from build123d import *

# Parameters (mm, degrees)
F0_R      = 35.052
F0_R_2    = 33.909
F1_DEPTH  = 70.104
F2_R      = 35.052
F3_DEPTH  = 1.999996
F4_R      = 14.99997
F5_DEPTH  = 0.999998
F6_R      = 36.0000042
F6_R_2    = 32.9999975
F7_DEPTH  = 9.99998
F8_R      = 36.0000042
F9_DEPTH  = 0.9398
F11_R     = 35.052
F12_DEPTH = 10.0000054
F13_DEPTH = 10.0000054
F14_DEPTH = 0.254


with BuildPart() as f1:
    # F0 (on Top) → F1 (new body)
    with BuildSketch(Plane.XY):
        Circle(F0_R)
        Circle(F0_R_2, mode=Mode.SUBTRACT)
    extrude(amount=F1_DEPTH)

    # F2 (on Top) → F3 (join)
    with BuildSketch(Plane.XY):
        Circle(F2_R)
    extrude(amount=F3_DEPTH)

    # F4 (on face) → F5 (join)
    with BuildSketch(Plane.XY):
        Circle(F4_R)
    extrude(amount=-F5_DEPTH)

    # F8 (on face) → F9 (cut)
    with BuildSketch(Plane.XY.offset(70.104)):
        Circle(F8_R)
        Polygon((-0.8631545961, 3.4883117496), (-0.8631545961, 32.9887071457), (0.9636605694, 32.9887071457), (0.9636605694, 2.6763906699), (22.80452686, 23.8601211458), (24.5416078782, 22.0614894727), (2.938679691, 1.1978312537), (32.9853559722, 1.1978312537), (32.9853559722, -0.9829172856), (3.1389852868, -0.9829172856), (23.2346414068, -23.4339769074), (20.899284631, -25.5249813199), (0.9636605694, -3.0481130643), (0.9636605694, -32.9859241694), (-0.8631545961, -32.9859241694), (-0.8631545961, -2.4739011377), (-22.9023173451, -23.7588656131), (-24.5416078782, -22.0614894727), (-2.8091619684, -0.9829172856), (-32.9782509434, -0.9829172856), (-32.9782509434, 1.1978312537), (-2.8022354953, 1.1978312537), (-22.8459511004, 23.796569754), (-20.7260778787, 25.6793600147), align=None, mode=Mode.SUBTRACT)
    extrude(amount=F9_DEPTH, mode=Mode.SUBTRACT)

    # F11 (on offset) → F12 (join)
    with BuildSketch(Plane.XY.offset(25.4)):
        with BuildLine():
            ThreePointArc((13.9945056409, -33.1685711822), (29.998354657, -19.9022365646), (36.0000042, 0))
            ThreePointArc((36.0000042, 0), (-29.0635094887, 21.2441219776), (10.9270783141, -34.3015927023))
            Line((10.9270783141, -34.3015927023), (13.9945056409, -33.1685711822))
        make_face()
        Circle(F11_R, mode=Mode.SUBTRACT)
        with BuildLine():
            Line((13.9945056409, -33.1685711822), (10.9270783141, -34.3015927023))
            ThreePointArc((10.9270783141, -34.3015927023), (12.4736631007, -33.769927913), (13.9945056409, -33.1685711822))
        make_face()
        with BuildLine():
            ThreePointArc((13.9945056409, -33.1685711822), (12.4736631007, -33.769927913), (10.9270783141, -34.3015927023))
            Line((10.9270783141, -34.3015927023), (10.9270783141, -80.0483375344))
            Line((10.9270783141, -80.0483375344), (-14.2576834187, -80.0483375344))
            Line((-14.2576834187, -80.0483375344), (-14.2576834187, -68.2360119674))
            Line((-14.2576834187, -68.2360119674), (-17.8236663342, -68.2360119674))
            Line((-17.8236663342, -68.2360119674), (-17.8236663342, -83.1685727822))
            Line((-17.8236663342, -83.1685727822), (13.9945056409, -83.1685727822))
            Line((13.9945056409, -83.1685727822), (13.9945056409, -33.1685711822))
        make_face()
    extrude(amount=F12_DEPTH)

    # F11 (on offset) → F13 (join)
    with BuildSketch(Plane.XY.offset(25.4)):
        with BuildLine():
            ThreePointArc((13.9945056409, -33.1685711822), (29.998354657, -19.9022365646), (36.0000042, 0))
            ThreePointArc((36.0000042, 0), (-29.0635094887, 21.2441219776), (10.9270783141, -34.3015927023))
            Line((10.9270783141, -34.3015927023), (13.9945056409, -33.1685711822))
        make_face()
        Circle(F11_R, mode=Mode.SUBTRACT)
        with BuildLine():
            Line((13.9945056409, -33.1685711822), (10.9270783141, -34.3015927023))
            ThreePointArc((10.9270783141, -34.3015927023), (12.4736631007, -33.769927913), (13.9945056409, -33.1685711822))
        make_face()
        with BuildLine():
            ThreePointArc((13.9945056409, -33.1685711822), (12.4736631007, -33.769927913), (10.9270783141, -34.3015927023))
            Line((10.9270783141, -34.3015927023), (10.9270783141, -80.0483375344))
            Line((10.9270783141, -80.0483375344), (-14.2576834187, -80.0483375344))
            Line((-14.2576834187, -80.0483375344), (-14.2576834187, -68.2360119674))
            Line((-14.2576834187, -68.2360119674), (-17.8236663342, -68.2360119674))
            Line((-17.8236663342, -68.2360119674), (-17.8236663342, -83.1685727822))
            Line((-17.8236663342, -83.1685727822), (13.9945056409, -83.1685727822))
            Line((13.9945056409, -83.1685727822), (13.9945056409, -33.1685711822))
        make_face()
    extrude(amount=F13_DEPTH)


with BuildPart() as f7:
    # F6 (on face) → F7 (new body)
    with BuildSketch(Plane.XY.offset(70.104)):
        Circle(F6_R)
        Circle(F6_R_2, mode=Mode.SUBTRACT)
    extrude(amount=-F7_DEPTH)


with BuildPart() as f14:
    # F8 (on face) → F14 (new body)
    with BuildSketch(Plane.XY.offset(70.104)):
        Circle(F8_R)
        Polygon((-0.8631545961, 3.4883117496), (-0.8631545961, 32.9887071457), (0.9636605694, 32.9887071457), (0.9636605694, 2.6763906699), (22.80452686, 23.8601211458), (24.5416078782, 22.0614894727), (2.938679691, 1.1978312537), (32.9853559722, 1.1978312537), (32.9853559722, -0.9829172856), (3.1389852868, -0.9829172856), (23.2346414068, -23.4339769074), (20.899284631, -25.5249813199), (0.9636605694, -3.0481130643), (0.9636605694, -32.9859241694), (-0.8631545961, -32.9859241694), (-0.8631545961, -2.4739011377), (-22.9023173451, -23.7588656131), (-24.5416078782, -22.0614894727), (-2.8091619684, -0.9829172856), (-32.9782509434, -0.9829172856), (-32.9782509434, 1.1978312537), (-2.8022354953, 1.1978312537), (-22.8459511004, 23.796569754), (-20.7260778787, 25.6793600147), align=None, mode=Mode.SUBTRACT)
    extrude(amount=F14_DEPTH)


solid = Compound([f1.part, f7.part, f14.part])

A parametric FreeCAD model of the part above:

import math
import FreeCAD as App
import Part
import Sketcher

V = App.Vector
Q = App.Units.Quantity

doc = App.newDocument("Part")
body = doc.addObject("PartDesign::Body", "Body")

sketch1 = body.newObject("Sketcher::SketchObject", "Sketch")
sketch1.AttachmentSupport = (doc.getObject("XY_Plane"), [""])
sketch1.MapMode = "FlatFace"
sketch1.addGeometry([
    Part.Circle(V(0, 0, 0), V(0, 0, 1), 35.052),
    Part.Circle(V(0, 0, 0), V(0, 0, 1), 33.909),
], False)
sketch1.addConstraint([
    Sketcher.Constraint("Coincident", 0, 3, -1, 1),
    Sketcher.Constraint("Coincident", 1, 3, -1, 1),
    Sketcher.Constraint("Diameter", 0, Q("2.76 in")),
    Sketcher.Constraint("Diameter", 1, Q("2.67 in")),
])
pad1 = body.newObject("PartDesign::Pad", "Pad")
pad1.Profile = sketch1
pad1.Length = Q("2.76 in")

sketch2 = body.newObject("Sketcher::SketchObject", "Sketch001")
sketch2.AttachmentSupport = (doc.getObject("XY_Plane"), [""])
sketch2.MapMode = "FlatFace"
sketch2.addGeometry(Part.Circle(V(0, 0, 0), V(0, 0, 1), 35.052), False)
sketch2.addConstraint([
    Sketcher.Constraint("Coincident", 0, 3, -1, 1),
    Sketcher.Constraint("Diameter", 0, Q("2.76 in")),
])
pad2 = body.newObject("PartDesign::Pad", "Pad001")
pad2.Profile = sketch2
pad2.Length = 1.999996

sketch3 = body.newObject("Sketcher::SketchObject", "Sketch002")
sketch3.AttachmentSupport = (doc.getObject("XY_Plane"), [""])
sketch3.MapMode = "FlatFace"
sketch3.addGeometry(Part.Circle(V(0, 0, 0), V(0, 0, 1), 14.99997), False)
sketch3.addConstraint([
    Sketcher.Constraint("Coincident", 0, 3, -1, 1),
    Sketcher.Constraint("Diameter", 0, Q("1.1811 in")),
])
pad3 = body.newObject("PartDesign::Pad", "Pad002")
pad3.Profile = sketch3
pad3.Length = 0.999998
pad3.Reversed = True

sketch4 = body.newObject("Sketcher::SketchObject", "Sketch003")
sketch4.AttachmentSupport = (doc.getObject("XY_Plane"), [""])
sketch4.MapMode = "FlatFace"
sketch4.AttachmentOffset = App.Placement(V(0, 0, 2.76 * 25.4), App.Rotation())
sketch4.addGeometry([
    Part.Circle(V(0, 0, 0), V(0, 0, 1), 36.000004),
    Part.LineSegment(V(-20.726078, 25.67936, 0), V(-0.863155, 3.488312, 0)),
    Part.LineSegment(V(-0.863155, 3.488312, 0), V(-0.863155, 32.988707, 0)),
    Part.LineSegment(V(-0.863155, 32.988707, 0), V(0.963661, 32.988707, 0)),
    Part.LineSegment(V(0.963661, 32.988707, 0), V(0.963661, 2.676391, 0)),
    Part.LineSegment(V(0.963661, 2.676391, 0), V(22.804527, 23.860121, 0)),
    Part.LineSegment(V(22.804527, 23.860121, 0), V(24.541608, 22.061489, 0)),
    Part.LineSegment(V(24.541608, 22.061489, 0), V(2.93868, 1.197831, 0)),
    Part.LineSegment(V(2.93868, 1.197831, 0), V(32.985356, 1.197831, 0)),
    Part.LineSegment(V(32.985356, 1.197831, 0), V(32.985356, -0.982917, 0)),
    Part.LineSegment(V(32.985356, -0.982917, 0), V(3.138985, -0.982917, 0)),
    Part.LineSegment(V(3.138985, -0.982917, 0), V(23.234641, -23.433977, 0)),
    Part.LineSegment(V(23.234641, -23.433977, 0), V(20.899285, -25.524981, 0)),
    Part.LineSegment(V(20.899285, -25.524981, 0), V(0.963661, -3.048113, 0)),
    Part.LineSegment(V(0.963661, -3.048113, 0), V(0.963661, -32.985924, 0)),
    Part.LineSegment(V(0.963661, -32.985924, 0), V(-0.863155, -32.985924, 0)),
    Part.LineSegment(V(-0.863155, -32.985924, 0), V(-0.863155, -2.473901, 0)),
    Part.LineSegment(V(-0.863155, -2.473901, 0), V(-22.902317, -23.758866, 0)),
    Part.LineSegment(V(-22.902317, -23.758866, 0), V(-24.541608, -22.061489, 0)),
    Part.LineSegment(V(-24.541608, -22.061489, 0), V(-2.809162, -0.982917, 0)),
    Part.LineSegment(V(-2.809162, -0.982917, 0), V(-32.978251, -0.982917, 0)),
    Part.LineSegment(V(-32.978251, -0.982917, 0), V(-32.978251, 1.197831, 0)),
    Part.LineSegment(V(-32.978251, 1.197831, 0), V(-2.802235, 1.197831, 0)),
    Part.LineSegment(V(-2.802235, 1.197831, 0), V(-22.845951, 23.79657, 0)),
    Part.LineSegment(V(-22.845951, 23.79657, 0), V(-20.726078, 25.67936, 0)),
], False)
sketch4.addConstraint([
    Sketcher.Constraint("Coincident", 1, 2, 2, 1),
    Sketcher.Constraint("Coincident", 2, 2, 3, 1),
    Sketcher.Constraint("Coincident", 3, 2, 4, 1),
    Sketcher.Constraint("Coincident", 4, 2, 5, 1),
    Sketcher.Constraint("Coincident", 5, 2, 6, 1),
    Sketcher.Constraint("Coincident", 6, 2, 7, 1),
    Sketcher.Constraint("Coincident", 7, 2, 8, 1),
    Sketcher.Constraint("Coincident", 8, 2, 9, 1),
    Sketcher.Constraint("Coincident", 9, 2, 10, 1),
    Sketcher.Constraint("Coincident", 10, 2, 11, 1),
    Sketcher.Constraint("Coincident", 11, 2, 12, 1),
    Sketcher.Constraint("Coincident", 12, 2, 13, 1),
    Sketcher.Constraint("Coincident", 13, 2, 14, 1),
    Sketcher.Constraint("Coincident", 14, 2, 15, 1),
    Sketcher.Constraint("Coincident", 15, 2, 16, 1),
    Sketcher.Constraint("Coincident", 16, 2, 17, 1),
    Sketcher.Constraint("Coincident", 17, 2, 18, 1),
    Sketcher.Constraint("Coincident", 18, 2, 19, 1),
    Sketcher.Constraint("Coincident", 19, 2, 20, 1),
    Sketcher.Constraint("Coincident", 20, 2, 21, 1),
    Sketcher.Constraint("Coincident", 21, 2, 22, 1),
    Sketcher.Constraint("Coincident", 22, 2, 23, 1),
    Sketcher.Constraint("Coincident", 23, 2, 24, 1),
    Sketcher.Constraint("Coincident", 24, 2, 1, 1),
    Sketcher.Constraint("Vertical", 2),
    Sketcher.Constraint("Horizontal", 3),
    Sketcher.Constraint("Vertical", 4),
    Sketcher.Constraint("Horizontal", 8),
    Sketcher.Constraint("Vertical", 9),
    Sketcher.Constraint("Horizontal", 10),
    Sketcher.Constraint("Vertical", 14),
    Sketcher.Constraint("Horizontal", 15),
    Sketcher.Constraint("Vertical", 16),
    Sketcher.Constraint("Horizontal", 20),
    Sketcher.Constraint("Vertical", 21),
    Sketcher.Constraint("Horizontal", 22),
    Sketcher.Constraint("Coincident", 0, 3, -1, 1),
    Sketcher.Constraint("Symmetric", 6, 2, 18, 2, -1, 1),
    Sketcher.Constraint("Perpendicular", 6, 7),
    Sketcher.Constraint("Parallel", 1, 11),
    Sketcher.Constraint("Parallel", 7, 17),
    Sketcher.Constraint("Perpendicular", 17, 18),
    Sketcher.Constraint("Parallel", 5, 19),
    Sketcher.Constraint("Parallel", 13, 23),
    Sketcher.Constraint("Horizontal", 10, 2, 19, 2),
    Sketcher.Constraint("Horizontal", 8, 2, 21, 2),
    Sketcher.Constraint("Vertical", 4, 2, 13, 2),
    Sketcher.Constraint("Vertical", 2, 2, 15, 2),
    Sketcher.Constraint("Diameter", 0, Q("72.000008 mm")),
    Sketcher.Constraint("Distance", 7, Q("1.1824 in")),
    Sketcher.Constraint("DistanceY", 11, 2, 9, 2, Q("0.8839 in")),
    Sketcher.Constraint("DistanceY", 16, 2, 10, 2, Q("0.0587002 in")),
    Sketcher.Constraint("DistanceX", 10, 2, 10, 1, Q("29.846371 mm")),
    Sketcher.Constraint("DistanceX", 20, 2, 20, 1, Q("30.169089 mm")),
    Sketcher.Constraint("DistanceY", 9, 2, 9, 1, Q("2.180749 mm")),
    Sketcher.Constraint("DistanceY", 14, 2, 14, 1, Q("29.937811 mm")),
    Sketcher.Constraint("DistanceY", 16, 2, -1, 1, Q("2.473901 mm")),
    Sketcher.Constraint("DistanceY", 4, 2, 6, 2, Q("19.385099 mm")),
    Sketcher.Constraint("DistanceX", 10, 2, 12, 2, Q("17.760299 mm")),
    Sketcher.Constraint("DistanceX", 21, 2, 23, 2, Q("10.1323 mm")),
    Sketcher.Constraint("Distance", 1, Q("29.782182 mm")),
    Sketcher.Constraint("Distance", 19, Q("30.275492 mm")),
    Sketcher.Constraint("Distance", 24, Q("2.835271 mm")),
    Sketcher.Constraint("DistanceX", 3, 1, 3, 2, Q("1.826815 mm")),
    Sketcher.Constraint("DistanceX", 8, 1, 8, 2, Q("30.046676 mm")),
    Sketcher.Constraint("DistanceX", 22, 1, 22, 2, Q("30.176015 mm")),
    Sketcher.Constraint("DistanceY", 2, 1, 2, 2, Q("29.500395 mm")),
    Sketcher.Constraint("DistanceY", 4, 2, 4, 1, Q("30.312316 mm")),
    Sketcher.Constraint("DistanceY", 16, 1, 16, 2, Q("30.512023 mm")),
    Sketcher.Constraint("DistanceY", -1, 1, 1, 2, Q("3.488312 mm")),
    Sketcher.Constraint("DistanceX", -1, 1, 3, 2, Q("0.963661 mm")),
    Sketcher.Constraint("DistanceY", -1, 1, 5, 2, Q("23.860121 mm")),
    Sketcher.Constraint("DistanceX", -1, 1, 11, 2, Q("23.234641 mm")),
])
pocket1 = body.newObject("PartDesign::Pocket", "Pocket")
pocket1.Profile = sketch4
pocket1.Length = Q("0.037 in")
pocket1.Reversed = True

sketch5 = body.newObject("Sketcher::SketchObject", "Sketch004")
sketch5.AttachmentSupport = (doc.getObject("XY_Plane"), [""])
sketch5.MapMode = "FlatFace"
sketch5.AttachmentOffset = App.Placement(V(0, 0, 1 * 25.4), App.Rotation())
sketch5.addGeometry([
    Part.ArcOfCircle(Part.Circle(V(0, 0, 0), V(0, 0, 1), 36.000004), math.radians(-67.124114), math.radians(287.669742)),
    Part.LineSegment(V(10.927078, -34.301593, 0), V(10.927078, -80.048338, 0)),
    Part.LineSegment(V(10.927078, -80.048338, 0), V(-14.257683, -80.048338, 0)),
    Part.LineSegment(V(-14.257683, -80.048338, 0), V(-14.257683, -68.236012, 0)),
    Part.LineSegment(V(-14.257683, -68.236012, 0), V(-17.823666, -68.236012, 0)),
    Part.LineSegment(V(-17.823666, -68.236012, 0), V(-17.823666, -83.168573, 0)),
    Part.LineSegment(V(-17.823666, -83.168573, 0), V(13.994506, -83.168573, 0)),
    Part.LineSegment(V(13.994506, -83.168573, 0), V(13.994506, -33.168571, 0)),
    Part.Circle(V(0, 0, 0), V(0, 0, 1), 35.052),
], False)
sketch5.addConstraint([
    Sketcher.Constraint("Coincident", 0, 2, 1, 1),
    Sketcher.Constraint("Coincident", 1, 2, 2, 1),
    Sketcher.Constraint("Coincident", 2, 2, 3, 1),
    Sketcher.Constraint("Coincident", 3, 2, 4, 1),
    Sketcher.Constraint("Coincident", 4, 2, 5, 1),
    Sketcher.Constraint("Coincident", 5, 2, 6, 1),
    Sketcher.Constraint("Coincident", 6, 2, 7, 1),
    Sketcher.Constraint("Coincident", 7, 2, 0, 1),
    Sketcher.Constraint("Vertical", 1),
    Sketcher.Constraint("Horizontal", 2),
    Sketcher.Constraint("Vertical", 3),
    Sketcher.Constraint("Horizontal", 4),
    Sketcher.Constraint("Vertical", 5),
    Sketcher.Constraint("Horizontal", 6),
    Sketcher.Constraint("Vertical", 7),
    Sketcher.Constraint("Coincident", 0, 3, -1, 1),
    Sketcher.Constraint("Coincident", 8, 3, -1, 1),
    Sketcher.Constraint("Diameter", 8, Q("2.76 in")),
    Sketcher.Constraint("DistanceY", 7, 1, 7, 2, Q("50.000002 mm")),
    Sketcher.Constraint("DistanceX", -1, 1, 0, 2, Q("0.4301999 in")),
    Sketcher.Constraint("Radius", 0, Q("36.000004 mm")),
    Sketcher.Constraint("DistanceX", 2, 2, 2, 1, Q("25.184762 mm")),
    Sketcher.Constraint("DistanceX", 6, 1, 6, 2, Q("31.818172 mm")),
    Sketcher.Constraint("DistanceY", 5, 2, 5, 1, Q("14.932561 mm")),
    Sketcher.Constraint("DistanceX", 4, 2, 4, 1, Q("3.565983 mm")),
    Sketcher.Constraint("DistanceY", 1, 2, 1, 1, Q("45.746745 mm")),
])
pad4 = body.newObject("PartDesign::Pad", "Pad003")
pad4.Profile = sketch5
pad4.Length = 10.000005

sketch6 = body.newObject("Sketcher::SketchObject", "Sketch005")
sketch6.AttachmentSupport = (doc.getObject("XY_Plane"), [""])
sketch6.MapMode = "FlatFace"
sketch6.AttachmentOffset = App.Placement(V(0, 0, 1 * 25.4), App.Rotation())
sketch6.addGeometry([
    Part.ArcOfCircle(Part.Circle(V(0, 0, 0), V(0, 0, 1), 36.000004), math.radians(-67.124114), math.radians(287.669742)),
    Part.LineSegment(V(10.927078, -34.301593, 0), V(10.927078, -80.048338, 0)),
    Part.LineSegment(V(10.927078, -80.048338, 0), V(-14.257683, -80.048338, 0)),
    Part.LineSegment(V(-14.257683, -80.048338, 0), V(-14.257683, -68.236012, 0)),
    Part.LineSegment(V(-14.257683, -68.236012, 0), V(-17.823666, -68.236012, 0)),
    Part.LineSegment(V(-17.823666, -68.236012, 0), V(-17.823666, -83.168573, 0)),
    Part.LineSegment(V(-17.823666, -83.168573, 0), V(13.994506, -83.168573, 0)),
    Part.LineSegment(V(13.994506, -83.168573, 0), V(13.994506, -33.168571, 0)),
    Part.Circle(V(0, 0, 0), V(0, 0, 1), 35.052),
], False)
sketch6.addConstraint([
    Sketcher.Constraint("Coincident", 0, 2, 1, 1),
    Sketcher.Constraint("Coincident", 1, 2, 2, 1),
    Sketcher.Constraint("Coincident", 2, 2, 3, 1),
    Sketcher.Constraint("Coincident", 3, 2, 4, 1),
    Sketcher.Constraint("Coincident", 4, 2, 5, 1),
    Sketcher.Constraint("Coincident", 5, 2, 6, 1),
    Sketcher.Constraint("Coincident", 6, 2, 7, 1),
    Sketcher.Constraint("Coincident", 7, 2, 0, 1),
    Sketcher.Constraint("Vertical", 1),
    Sketcher.Constraint("Horizontal", 2),
    Sketcher.Constraint("Vertical", 3),
    Sketcher.Constraint("Horizontal", 4),
    Sketcher.Constraint("Vertical", 5),
    Sketcher.Constraint("Horizontal", 6),
    Sketcher.Constraint("Vertical", 7),
    Sketcher.Constraint("Coincident", 0, 3, -1, 1),
    Sketcher.Constraint("Coincident", 8, 3, -1, 1),
    Sketcher.Constraint("Diameter", 8, Q("2.76 in")),
    Sketcher.Constraint("DistanceY", 7, 1, 7, 2, Q("50.000002 mm")),
    Sketcher.Constraint("DistanceX", -1, 1, 0, 2, Q("0.4301999 in")),
    Sketcher.Constraint("Radius", 0, Q("36.000004 mm")),
    Sketcher.Constraint("DistanceX", 2, 2, 2, 1, Q("25.184762 mm")),
    Sketcher.Constraint("DistanceX", 6, 1, 6, 2, Q("31.818172 mm")),
    Sketcher.Constraint("DistanceY", 5, 2, 5, 1, Q("14.932561 mm")),
    Sketcher.Constraint("DistanceX", 4, 2, 4, 1, Q("3.565983 mm")),
    Sketcher.Constraint("DistanceY", 1, 2, 1, 1, Q("45.746745 mm")),
])
pad5 = body.newObject("PartDesign::Pad", "Pad004")
pad5.Profile = sketch6
pad5.Length = 10.000005
body2 = doc.addObject("PartDesign::Body", "Body001")

sketch7 = body2.newObject("Sketcher::SketchObject", "Sketch006")
sketch7.AttachmentSupport = (doc.getObject("XY_Plane001"), [""])
sketch7.MapMode = "FlatFace"
sketch7.AttachmentOffset = App.Placement(V(0, 0, 2.76 * 25.4), App.Rotation())
sketch7.addGeometry([
    Part.Circle(V(0, 0, 0), V(0, 0, 1), 36.000004),
    Part.Circle(V(0, 0, 0), V(0, 0, 1), 32.999997),
], False)
sketch7.addConstraint([
    Sketcher.Constraint("Coincident", 0, 3, -1, 1),
    Sketcher.Constraint("Coincident", 1, 3, -1, 1),
    Sketcher.Constraint("Diameter", 0, Q("72.000008 mm")),
    Sketcher.Constraint("Diameter", 1, Q("65.999995 mm")),
])
pad6 = body2.newObject("PartDesign::Pad", "Pad005")
pad6.Profile = sketch7
pad6.Length = Q("0.3937 in")
pad6.Reversed = True
body3 = doc.addObject("PartDesign::Body", "Body002")

sketch8 = body3.newObject("Sketcher::SketchObject", "Sketch007")
sketch8.AttachmentSupport = (doc.getObject("XY_Plane002"), [""])
sketch8.MapMode = "FlatFace"
sketch8.AttachmentOffset = App.Placement(V(0, 0, 2.76 * 25.4), App.Rotation())
sketch8.addGeometry([
    Part.Circle(V(0, 0, 0), V(0, 0, 1), 36.000004),
    Part.LineSegment(V(-20.726078, 25.67936, 0), V(-0.863155, 3.488312, 0)),
    Part.LineSegment(V(-0.863155, 3.488312, 0), V(-0.863155, 32.988707, 0)),
    Part.LineSegment(V(-0.863155, 32.988707, 0), V(0.963661, 32.988707, 0)),
    Part.LineSegment(V(0.963661, 32.988707, 0), V(0.963661, 2.676391, 0)),
    Part.LineSegment(V(0.963661, 2.676391, 0), V(22.804527, 23.860121, 0)),
    Part.LineSegment(V(22.804527, 23.860121, 0), V(24.541608, 22.061489, 0)),
    Part.LineSegment(V(24.541608, 22.061489, 0), V(2.93868, 1.197831, 0)),
    Part.LineSegment(V(2.93868, 1.197831, 0), V(32.985356, 1.197831, 0)),
    Part.LineSegment(V(32.985356, 1.197831, 0), V(32.985356, -0.982917, 0)),
    Part.LineSegment(V(32.985356, -0.982917, 0), V(3.138985, -0.982917, 0)),
    Part.LineSegment(V(3.138985, -0.982917, 0), V(23.234641, -23.433977, 0)),
    Part.LineSegment(V(23.234641, -23.433977, 0), V(20.899285, -25.524981, 0)),
    Part.LineSegment(V(20.899285, -25.524981, 0), V(0.963661, -3.048113, 0)),
    Part.LineSegment(V(0.963661, -3.048113, 0), V(0.963661, -32.985924, 0)),
    Part.LineSegment(V(0.963661, -32.985924, 0), V(-0.863155, -32.985924, 0)),
    Part.LineSegment(V(-0.863155, -32.985924, 0), V(-0.863155, -2.473901, 0)),
    Part.LineSegment(V(-0.863155, -2.473901, 0), V(-22.902317, -23.758866, 0)),
    Part.LineSegment(V(-22.902317, -23.758866, 0), V(-24.541608, -22.061489, 0)),
    Part.LineSegment(V(-24.541608, -22.061489, 0), V(-2.809162, -0.982917, 0)),
    Part.LineSegment(V(-2.809162, -0.982917, 0), V(-32.978251, -0.982917, 0)),
    Part.LineSegment(V(-32.978251, -0.982917, 0), V(-32.978251, 1.197831, 0)),
    Part.LineSegment(V(-32.978251, 1.197831, 0), V(-2.802235, 1.197831, 0)),
    Part.LineSegment(V(-2.802235, 1.197831, 0), V(-22.845951, 23.79657, 0)),
    Part.LineSegment(V(-22.845951, 23.79657, 0), V(-20.726078, 25.67936, 0)),
], False)
sketch8.addConstraint([
    Sketcher.Constraint("Coincident", 1, 2, 2, 1),
    Sketcher.Constraint("Coincident", 2, 2, 3, 1),
    Sketcher.Constraint("Coincident", 3, 2, 4, 1),
    Sketcher.Constraint("Coincident", 4, 2, 5, 1),
    Sketcher.Constraint("Coincident", 5, 2, 6, 1),
    Sketcher.Constraint("Coincident", 6, 2, 7, 1),
    Sketcher.Constraint("Coincident", 7, 2, 8, 1),
    Sketcher.Constraint("Coincident", 8, 2, 9, 1),
    Sketcher.Constraint("Coincident", 9, 2, 10, 1),
    Sketcher.Constraint("Coincident", 10, 2, 11, 1),
    Sketcher.Constraint("Coincident", 11, 2, 12, 1),
    Sketcher.Constraint("Coincident", 12, 2, 13, 1),
    Sketcher.Constraint("Coincident", 13, 2, 14, 1),
    Sketcher.Constraint("Coincident", 14, 2, 15, 1),
    Sketcher.Constraint("Coincident", 15, 2, 16, 1),
    Sketcher.Constraint("Coincident", 16, 2, 17, 1),
    Sketcher.Constraint("Coincident", 17, 2, 18, 1),
    Sketcher.Constraint("Coincident", 18, 2, 19, 1),
    Sketcher.Constraint("Coincident", 19, 2, 20, 1),
    Sketcher.Constraint("Coincident", 20, 2, 21, 1),
    Sketcher.Constraint("Coincident", 21, 2, 22, 1),
    Sketcher.Constraint("Coincident", 22, 2, 23, 1),
    Sketcher.Constraint("Coincident", 23, 2, 24, 1),
    Sketcher.Constraint("Coincident", 24, 2, 1, 1),
    Sketcher.Constraint("Vertical", 2),
    Sketcher.Constraint("Horizontal", 3),
    Sketcher.Constraint("Vertical", 4),
    Sketcher.Constraint("Horizontal", 8),
    Sketcher.Constraint("Vertical", 9),
    Sketcher.Constraint("Horizontal", 10),
    Sketcher.Constraint("Vertical", 14),
    Sketcher.Constraint("Horizontal", 15),
    Sketcher.Constraint("Vertical", 16),
    Sketcher.Constraint("Horizontal", 20),
    Sketcher.Constraint("Vertical", 21),
    Sketcher.Constraint("Horizontal", 22),
    Sketcher.Constraint("Coincident", 0, 3, -1, 1),
    Sketcher.Constraint("Symmetric", 6, 2, 18, 2, -1, 1),
    Sketcher.Constraint("Perpendicular", 6, 7),
    Sketcher.Constraint("Parallel", 1, 11),
    Sketcher.Constraint("Parallel", 7, 17),
    Sketcher.Constraint("Perpendicular", 17, 18),
    Sketcher.Constraint("Parallel", 5, 19),
    Sketcher.Constraint("Parallel", 13, 23),
    Sketcher.Constraint("Horizontal", 10, 2, 19, 2),
    Sketcher.Constraint("Horizontal", 8, 2, 21, 2),
    Sketcher.Constraint("Vertical", 4, 2, 13, 2),
    Sketcher.Constraint("Vertical", 2, 2, 15, 2),
    Sketcher.Constraint("Diameter", 0, Q("72.000008 mm")),
    Sketcher.Constraint("Distance", 7, Q("1.1824 in")),
    Sketcher.Constraint("DistanceY", 11, 2, 9, 2, Q("0.8839 in")),
    Sketcher.Constraint("DistanceY", 16, 2, 10, 2, Q("0.0587002 in")),
    Sketcher.Constraint("DistanceX", 10, 2, 10, 1, Q("29.846371 mm")),
    Sketcher.Constraint("DistanceX", 20, 2, 20, 1, Q("30.169089 mm")),
    Sketcher.Constraint("DistanceY", 9, 2, 9, 1, Q("2.180749 mm")),
    Sketcher.Constraint("DistanceY", 14, 2, 14, 1, Q("29.937811 mm")),
    Sketcher.Constraint("DistanceY", 16, 2, -1, 1, Q("2.473901 mm")),
    Sketcher.Constraint("DistanceY", 4, 2, 6, 2, Q("19.385099 mm")),
    Sketcher.Constraint("DistanceX", 10, 2, 12, 2, Q("17.760299 mm")),
    Sketcher.Constraint("DistanceX", 21, 2, 23, 2, Q("10.1323 mm")),
    Sketcher.Constraint("Distance", 1, Q("29.782182 mm")),
    Sketcher.Constraint("Distance", 19, Q("30.275492 mm")),
    Sketcher.Constraint("Distance", 24, Q("2.835271 mm")),
    Sketcher.Constraint("DistanceX", 3, 1, 3, 2, Q("1.826815 mm")),
    Sketcher.Constraint("DistanceX", 8, 1, 8, 2, Q("30.046676 mm")),
    Sketcher.Constraint("DistanceX", 22, 1, 22, 2, Q("30.176015 mm")),
    Sketcher.Constraint("DistanceY", 2, 1, 2, 2, Q("29.500395 mm")),
    Sketcher.Constraint("DistanceY", 4, 2, 4, 1, Q("30.312316 mm")),
    Sketcher.Constraint("DistanceY", 16, 1, 16, 2, Q("30.512023 mm")),
    Sketcher.Constraint("DistanceY", -1, 1, 1, 2, Q("3.488312 mm")),
    Sketcher.Constraint("DistanceX", -1, 1, 3, 2, Q("0.963661 mm")),
    Sketcher.Constraint("DistanceY", -1, 1, 5, 2, Q("23.860121 mm")),
    Sketcher.Constraint("DistanceX", -1, 1, 11, 2, Q("23.234641 mm")),
])
pad7 = body3.newObject("PartDesign::Pad", "Pad006")
pad7.Profile = sketch8
pad7.Length = Q("0.01 in")

doc.recompute()
